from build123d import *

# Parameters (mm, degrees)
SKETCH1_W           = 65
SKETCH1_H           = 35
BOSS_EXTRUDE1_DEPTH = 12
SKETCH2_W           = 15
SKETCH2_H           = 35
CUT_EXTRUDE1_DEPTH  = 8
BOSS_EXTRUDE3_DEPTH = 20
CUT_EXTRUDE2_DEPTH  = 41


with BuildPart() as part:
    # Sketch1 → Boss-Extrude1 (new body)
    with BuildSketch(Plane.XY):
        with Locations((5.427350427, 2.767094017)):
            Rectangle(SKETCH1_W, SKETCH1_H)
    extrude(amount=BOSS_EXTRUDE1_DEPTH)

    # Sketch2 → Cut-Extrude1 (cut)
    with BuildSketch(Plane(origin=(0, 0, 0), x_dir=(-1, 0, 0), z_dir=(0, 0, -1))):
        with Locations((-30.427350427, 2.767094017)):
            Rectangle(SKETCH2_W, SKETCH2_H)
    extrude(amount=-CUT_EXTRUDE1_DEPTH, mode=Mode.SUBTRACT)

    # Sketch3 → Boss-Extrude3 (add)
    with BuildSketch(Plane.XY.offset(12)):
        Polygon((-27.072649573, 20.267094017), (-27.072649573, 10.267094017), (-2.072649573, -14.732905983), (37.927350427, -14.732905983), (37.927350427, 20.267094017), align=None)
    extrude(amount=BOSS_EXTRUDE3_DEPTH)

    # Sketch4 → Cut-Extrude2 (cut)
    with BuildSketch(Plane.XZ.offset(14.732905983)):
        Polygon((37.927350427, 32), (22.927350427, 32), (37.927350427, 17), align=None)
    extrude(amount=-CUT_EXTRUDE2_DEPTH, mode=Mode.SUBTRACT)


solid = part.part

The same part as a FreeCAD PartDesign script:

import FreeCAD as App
import Part
import Sketcher
from FreeCAD import Vector
Q = App.Units.Quantity

doc = App.newDocument("Part")
params = doc.addObject("Spreadsheet::Sheet", "Params")
for row, (alias, value) in enumerate([
    ("sketch1_width", "65 mm"),
    ("sketch1_height", "35 mm"),
    ("pad1_length", "12 mm"),
    ("sketch2_width", "15 mm"),
    ("sketch2_height", "35 mm"),
    ("pocket1_length", "8 mm"),
    ("sketch3_width", "40 mm"),
    ("sketch3_width2", "65 mm"),
    ("sketch3_height", "10 mm"),
    ("sketch3_height2", "35 mm"),
    ("pad2_length", "20 mm"),
    ("sketch4_width", "15 mm"),
    ("pocket2_length", "41 mm"),
], start=1):
    params.set(f"A{row}", alias)
    params.set(f"B{row}", "=" + value)
    params.setAlias(f"B{row}", alias)

body = doc.addObject("PartDesign::Body", "Body")

# Sketch on XY plane
sketch1 = body.newObject("Sketcher::SketchObject", "Sketch")
sketch1.AttachmentSupport = (doc.getObject("XY_Plane"), [""])
sketch1.MapMode = "FlatFace"
sketch1.addGeometry([
    Part.LineSegment(Vector(-27.07265, 20.267094, 0), Vector(-27.07265, -14.732906, 0)),
    Part.LineSegment(Vector(-27.07265, -14.732906, 0), Vector(37.92735, -14.732906, 0)),
    Part.LineSegment(Vector(37.92735, -14.732906, 0), Vector(37.92735, 20.267094, 0)),
    Part.LineSegment(Vector(37.92735, 20.267094, 0), Vector(-27.07265, 20.267094, 0)),
], False)
sketch1.addConstraint([
    Sketcher.Constraint("Coincident", 0, 2, 1, 1),
    Sketcher.Constraint("Coincident", 1, 2, 2, 1),
    Sketcher.Constraint("Coincident", 2, 2, 3, 1),
    Sketcher.Constraint("Coincident", 3, 2, 0, 1),
    Sketcher.Constraint("Vertical", 0),
    Sketcher.Constraint("Horizontal", 1),
    Sketcher.Constraint("Vertical", 2),
    Sketcher.Constraint("Horizontal", 3),
    Sketcher.Constraint("DistanceX", 1, 1, 1, 2, Q("65 mm")),
    Sketcher.Constraint("DistanceY", 0, 2, 0, 1, Q("35 mm")),
    Sketcher.Constraint("DistanceX", 0, 2, -1, 1, Q("27.07265 mm")),
    Sketcher.Constraint("DistanceY", 0, 2, -1, 1, Q("14.732906 mm")),
])
sketch1.setExpression("Constraints[8]", "Params.sketch1_width")
sketch1.setExpression("Constraints[9]", "Params.sketch1_height")
pad1 = body.newObject("PartDesign::Pad", "Pad")
pad1.Profile = sketch1
pad1.setExpression("Length", "Params.pad1_length")

# Sketch on XY plane
sketch2 = body.newObject("Sketcher::SketchObject", "Sketch001")
sketch2.AttachmentSupport = (doc.getObject("XY_Plane"), [""])
sketch2.MapMode = "FlatFace"
sketch2.addGeometry([
    Part.LineSegment(Vector(37.92735, 20.267094, 0), Vector(37.92735, -14.732906, 0)),
    Part.LineSegment(Vector(37.92735, -14.732906, 0), Vector(22.92735, -14.732906, 0)),
    Part.LineSegment(Vector(22.92735, -14.732906, 0), Vector(22.92735, 20.267094, 0)),
    Part.LineSegment(Vector(22.92735, 20.267094, 0), Vector(37.92735, 20.267094, 0)),
], False)
sketch2.addConstraint([
    Sketcher.Constraint("Coincident", 0, 2, 1, 1),
    Sketcher.Constraint("Coincident", 1, 2, 2, 1),
    Sketcher.Constraint("Coincident", 2, 2, 3, 1),
    Sketcher.Constraint("Coincident", 3, 2, 0, 1),
    Sketcher.Constraint("Vertical", 0),
    Sketcher.Constraint("Horizontal", 1),
    Sketcher.Constraint("Vertical", 2),
    Sketcher.Constraint("Horizontal", 3),
    Sketcher.Constraint("DistanceX", 1, 2, 1, 1, Q("15 mm")),
    Sketcher.Constraint("DistanceY", 0, 2, 0, 1, Q("35 mm")),
    Sketcher.Constraint("DistanceX", -1, 1, 0, 2, Q("37.92735 mm")),
    Sketcher.Constraint("DistanceY", 0, 2, -1, 1, Q("14.732906 mm")),
])
sketch2.setExpression("Constraints[8]", "Params.sketch2_width")
sketch2.setExpression("Constraints[9]", "Params.sketch2_height")
pocket1 = body.newObject("PartDesign::Pocket", "Pocket")
pocket1.Profile = sketch2
pocket1.setExpression("Length", "Params.pocket1_length")
pocket1.Reversed = True

# Sketch on XY plane
sketch3 = body.newObject("Sketcher::SketchObject", "Sketch002")
sketch3.AttachmentSupport = (doc.getObject("XY_Plane"), [""])
sketch3.MapMode = "FlatFace"
sketch3.AttachmentOffset = App.Placement(Vector(0, 0, 12), App.Rotation())
sketch3.addGeometry([
    Part.LineSegment(Vector(-27.07265, 20.267094, 0), Vector(-27.07265, 10.267094, 0)),  # 0
    Part.LineSegment(Vector(-27.07265, 10.267094, 0), Vector(-2.07265, -14.732906, 0)),  # 1
    Part.LineSegment(Vector(-2.07265, -14.732906, 0), Vector(37.92735, -14.732906, 0)),  # 2
    Part.LineSegment(Vector(37.92735, -14.732906, 0), Vector(37.92735, 20.267094, 0)),  # 3
    Part.LineSegment(Vector(37.92735, 20.267094, 0), Vector(-27.07265, 20.267094, 0)),  # 4
], False)
sketch3.addConstraint([
    Sketcher.Constraint("Coincident", 0, 2, 1, 1),
    Sketcher.Constraint("Coincident", 1, 2, 2, 1),
    Sketcher.Constraint("Coincident", 2, 2, 3, 1),
    Sketcher.Constraint("Coincident", 3, 2, 4, 1),
    Sketcher.Constraint("Coincident", 4, 2, 0, 1),
    Sketcher.Constraint("Vertical", 0),
    Sketcher.Constraint("Horizontal", 2),
    Sketcher.Constraint("Vertical", 3),
    Sketcher.Constraint("Horizontal", 4),
    Sketcher.Constraint("DistanceX", 2, 1, 2, 2, Q("40 mm")),
    Sketcher.Constraint("DistanceX", 4, 2, 4, 1, Q("65 mm")),
    Sketcher.Constraint("DistanceY", 0, 2, 0, 1, Q("10 mm")),
    Sketcher.Constraint("DistanceY", 3, 1, 3, 2, Q("35 mm")),
    Sketcher.Constraint("DistanceX", 0, 2, -1, 1, Q("27.07265 mm")),
    Sketcher.Constraint("DistanceY", -1, 1, 0, 2, Q("10.267094 mm")),
])
sketch3.setExpression("Constraints[9]", "Params.sketch3_width")
sketch3.setExpression("Constraints[10]", "Params.sketch3_width2")
sketch3.setExpression("Constraints[11]", "Params.sketch3_height")
sketch3.setExpression("Constraints[12]", "Params.sketch3_height2")
pad2 = body.newObject("PartDesign::Pad", "Pad001")
pad2.Profile = sketch3
pad2.setExpression("Length", "Params.pad2_length")

# Sketch on XZ plane
sketch4 = body.newObject("Sketcher::SketchObject", "Sketch003")
sketch4.AttachmentSupport = (doc.getObject("XZ_Plane"), [""])
sketch4.MapMode = "FlatFace"
sketch4.AttachmentOffset = App.Placement(Vector(0, 0, 14.732906), App.Rotation())
sketch4.addGeometry([
    Part.LineSegment(Vector(37.92735, 32, 0), Vector(22.92735, 32, 0)),
    Part.LineSegment(Vector(22.92735, 32, 0), Vector(37.92735, 17, 0)),
    Part.LineSegment(Vector(37.92735, 17, 0), Vector(37.92735, 32, 0)),
], False)
sketch4.addConstraint([
    Sketcher.Constraint("Coincident", 0, 2, 1, 1),
    Sketcher.Constraint("Coincident", 1, 2, 2, 1),
    Sketcher.Constraint("Coincident", 2, 2, 0, 1),
    Sketcher.Constraint("Horizontal", 0),
    Sketcher.Constraint("Vertical", 2),
    Sketcher.Constraint("Equal", 0, 2),
    Sketcher.Constraint("DistanceX", 0, 2, 0, 1, Q("15 mm")),
    Sketcher.Constraint("DistanceY", -1, 1, 0, 2, Q("32 mm")),
    Sketcher.Constraint("DistanceX", -1, 1, 0, 2, Q("22.92735 mm")),
])
sketch4.setExpression("Constraints[6]", "Params.sketch4_width")
pocket2 = body.newObject("PartDesign::Pocket", "Pocket001")
pocket2.Profile = sketch4
pocket2.setExpression("Length", "Params.pocket2_length")

doc.recompute()
